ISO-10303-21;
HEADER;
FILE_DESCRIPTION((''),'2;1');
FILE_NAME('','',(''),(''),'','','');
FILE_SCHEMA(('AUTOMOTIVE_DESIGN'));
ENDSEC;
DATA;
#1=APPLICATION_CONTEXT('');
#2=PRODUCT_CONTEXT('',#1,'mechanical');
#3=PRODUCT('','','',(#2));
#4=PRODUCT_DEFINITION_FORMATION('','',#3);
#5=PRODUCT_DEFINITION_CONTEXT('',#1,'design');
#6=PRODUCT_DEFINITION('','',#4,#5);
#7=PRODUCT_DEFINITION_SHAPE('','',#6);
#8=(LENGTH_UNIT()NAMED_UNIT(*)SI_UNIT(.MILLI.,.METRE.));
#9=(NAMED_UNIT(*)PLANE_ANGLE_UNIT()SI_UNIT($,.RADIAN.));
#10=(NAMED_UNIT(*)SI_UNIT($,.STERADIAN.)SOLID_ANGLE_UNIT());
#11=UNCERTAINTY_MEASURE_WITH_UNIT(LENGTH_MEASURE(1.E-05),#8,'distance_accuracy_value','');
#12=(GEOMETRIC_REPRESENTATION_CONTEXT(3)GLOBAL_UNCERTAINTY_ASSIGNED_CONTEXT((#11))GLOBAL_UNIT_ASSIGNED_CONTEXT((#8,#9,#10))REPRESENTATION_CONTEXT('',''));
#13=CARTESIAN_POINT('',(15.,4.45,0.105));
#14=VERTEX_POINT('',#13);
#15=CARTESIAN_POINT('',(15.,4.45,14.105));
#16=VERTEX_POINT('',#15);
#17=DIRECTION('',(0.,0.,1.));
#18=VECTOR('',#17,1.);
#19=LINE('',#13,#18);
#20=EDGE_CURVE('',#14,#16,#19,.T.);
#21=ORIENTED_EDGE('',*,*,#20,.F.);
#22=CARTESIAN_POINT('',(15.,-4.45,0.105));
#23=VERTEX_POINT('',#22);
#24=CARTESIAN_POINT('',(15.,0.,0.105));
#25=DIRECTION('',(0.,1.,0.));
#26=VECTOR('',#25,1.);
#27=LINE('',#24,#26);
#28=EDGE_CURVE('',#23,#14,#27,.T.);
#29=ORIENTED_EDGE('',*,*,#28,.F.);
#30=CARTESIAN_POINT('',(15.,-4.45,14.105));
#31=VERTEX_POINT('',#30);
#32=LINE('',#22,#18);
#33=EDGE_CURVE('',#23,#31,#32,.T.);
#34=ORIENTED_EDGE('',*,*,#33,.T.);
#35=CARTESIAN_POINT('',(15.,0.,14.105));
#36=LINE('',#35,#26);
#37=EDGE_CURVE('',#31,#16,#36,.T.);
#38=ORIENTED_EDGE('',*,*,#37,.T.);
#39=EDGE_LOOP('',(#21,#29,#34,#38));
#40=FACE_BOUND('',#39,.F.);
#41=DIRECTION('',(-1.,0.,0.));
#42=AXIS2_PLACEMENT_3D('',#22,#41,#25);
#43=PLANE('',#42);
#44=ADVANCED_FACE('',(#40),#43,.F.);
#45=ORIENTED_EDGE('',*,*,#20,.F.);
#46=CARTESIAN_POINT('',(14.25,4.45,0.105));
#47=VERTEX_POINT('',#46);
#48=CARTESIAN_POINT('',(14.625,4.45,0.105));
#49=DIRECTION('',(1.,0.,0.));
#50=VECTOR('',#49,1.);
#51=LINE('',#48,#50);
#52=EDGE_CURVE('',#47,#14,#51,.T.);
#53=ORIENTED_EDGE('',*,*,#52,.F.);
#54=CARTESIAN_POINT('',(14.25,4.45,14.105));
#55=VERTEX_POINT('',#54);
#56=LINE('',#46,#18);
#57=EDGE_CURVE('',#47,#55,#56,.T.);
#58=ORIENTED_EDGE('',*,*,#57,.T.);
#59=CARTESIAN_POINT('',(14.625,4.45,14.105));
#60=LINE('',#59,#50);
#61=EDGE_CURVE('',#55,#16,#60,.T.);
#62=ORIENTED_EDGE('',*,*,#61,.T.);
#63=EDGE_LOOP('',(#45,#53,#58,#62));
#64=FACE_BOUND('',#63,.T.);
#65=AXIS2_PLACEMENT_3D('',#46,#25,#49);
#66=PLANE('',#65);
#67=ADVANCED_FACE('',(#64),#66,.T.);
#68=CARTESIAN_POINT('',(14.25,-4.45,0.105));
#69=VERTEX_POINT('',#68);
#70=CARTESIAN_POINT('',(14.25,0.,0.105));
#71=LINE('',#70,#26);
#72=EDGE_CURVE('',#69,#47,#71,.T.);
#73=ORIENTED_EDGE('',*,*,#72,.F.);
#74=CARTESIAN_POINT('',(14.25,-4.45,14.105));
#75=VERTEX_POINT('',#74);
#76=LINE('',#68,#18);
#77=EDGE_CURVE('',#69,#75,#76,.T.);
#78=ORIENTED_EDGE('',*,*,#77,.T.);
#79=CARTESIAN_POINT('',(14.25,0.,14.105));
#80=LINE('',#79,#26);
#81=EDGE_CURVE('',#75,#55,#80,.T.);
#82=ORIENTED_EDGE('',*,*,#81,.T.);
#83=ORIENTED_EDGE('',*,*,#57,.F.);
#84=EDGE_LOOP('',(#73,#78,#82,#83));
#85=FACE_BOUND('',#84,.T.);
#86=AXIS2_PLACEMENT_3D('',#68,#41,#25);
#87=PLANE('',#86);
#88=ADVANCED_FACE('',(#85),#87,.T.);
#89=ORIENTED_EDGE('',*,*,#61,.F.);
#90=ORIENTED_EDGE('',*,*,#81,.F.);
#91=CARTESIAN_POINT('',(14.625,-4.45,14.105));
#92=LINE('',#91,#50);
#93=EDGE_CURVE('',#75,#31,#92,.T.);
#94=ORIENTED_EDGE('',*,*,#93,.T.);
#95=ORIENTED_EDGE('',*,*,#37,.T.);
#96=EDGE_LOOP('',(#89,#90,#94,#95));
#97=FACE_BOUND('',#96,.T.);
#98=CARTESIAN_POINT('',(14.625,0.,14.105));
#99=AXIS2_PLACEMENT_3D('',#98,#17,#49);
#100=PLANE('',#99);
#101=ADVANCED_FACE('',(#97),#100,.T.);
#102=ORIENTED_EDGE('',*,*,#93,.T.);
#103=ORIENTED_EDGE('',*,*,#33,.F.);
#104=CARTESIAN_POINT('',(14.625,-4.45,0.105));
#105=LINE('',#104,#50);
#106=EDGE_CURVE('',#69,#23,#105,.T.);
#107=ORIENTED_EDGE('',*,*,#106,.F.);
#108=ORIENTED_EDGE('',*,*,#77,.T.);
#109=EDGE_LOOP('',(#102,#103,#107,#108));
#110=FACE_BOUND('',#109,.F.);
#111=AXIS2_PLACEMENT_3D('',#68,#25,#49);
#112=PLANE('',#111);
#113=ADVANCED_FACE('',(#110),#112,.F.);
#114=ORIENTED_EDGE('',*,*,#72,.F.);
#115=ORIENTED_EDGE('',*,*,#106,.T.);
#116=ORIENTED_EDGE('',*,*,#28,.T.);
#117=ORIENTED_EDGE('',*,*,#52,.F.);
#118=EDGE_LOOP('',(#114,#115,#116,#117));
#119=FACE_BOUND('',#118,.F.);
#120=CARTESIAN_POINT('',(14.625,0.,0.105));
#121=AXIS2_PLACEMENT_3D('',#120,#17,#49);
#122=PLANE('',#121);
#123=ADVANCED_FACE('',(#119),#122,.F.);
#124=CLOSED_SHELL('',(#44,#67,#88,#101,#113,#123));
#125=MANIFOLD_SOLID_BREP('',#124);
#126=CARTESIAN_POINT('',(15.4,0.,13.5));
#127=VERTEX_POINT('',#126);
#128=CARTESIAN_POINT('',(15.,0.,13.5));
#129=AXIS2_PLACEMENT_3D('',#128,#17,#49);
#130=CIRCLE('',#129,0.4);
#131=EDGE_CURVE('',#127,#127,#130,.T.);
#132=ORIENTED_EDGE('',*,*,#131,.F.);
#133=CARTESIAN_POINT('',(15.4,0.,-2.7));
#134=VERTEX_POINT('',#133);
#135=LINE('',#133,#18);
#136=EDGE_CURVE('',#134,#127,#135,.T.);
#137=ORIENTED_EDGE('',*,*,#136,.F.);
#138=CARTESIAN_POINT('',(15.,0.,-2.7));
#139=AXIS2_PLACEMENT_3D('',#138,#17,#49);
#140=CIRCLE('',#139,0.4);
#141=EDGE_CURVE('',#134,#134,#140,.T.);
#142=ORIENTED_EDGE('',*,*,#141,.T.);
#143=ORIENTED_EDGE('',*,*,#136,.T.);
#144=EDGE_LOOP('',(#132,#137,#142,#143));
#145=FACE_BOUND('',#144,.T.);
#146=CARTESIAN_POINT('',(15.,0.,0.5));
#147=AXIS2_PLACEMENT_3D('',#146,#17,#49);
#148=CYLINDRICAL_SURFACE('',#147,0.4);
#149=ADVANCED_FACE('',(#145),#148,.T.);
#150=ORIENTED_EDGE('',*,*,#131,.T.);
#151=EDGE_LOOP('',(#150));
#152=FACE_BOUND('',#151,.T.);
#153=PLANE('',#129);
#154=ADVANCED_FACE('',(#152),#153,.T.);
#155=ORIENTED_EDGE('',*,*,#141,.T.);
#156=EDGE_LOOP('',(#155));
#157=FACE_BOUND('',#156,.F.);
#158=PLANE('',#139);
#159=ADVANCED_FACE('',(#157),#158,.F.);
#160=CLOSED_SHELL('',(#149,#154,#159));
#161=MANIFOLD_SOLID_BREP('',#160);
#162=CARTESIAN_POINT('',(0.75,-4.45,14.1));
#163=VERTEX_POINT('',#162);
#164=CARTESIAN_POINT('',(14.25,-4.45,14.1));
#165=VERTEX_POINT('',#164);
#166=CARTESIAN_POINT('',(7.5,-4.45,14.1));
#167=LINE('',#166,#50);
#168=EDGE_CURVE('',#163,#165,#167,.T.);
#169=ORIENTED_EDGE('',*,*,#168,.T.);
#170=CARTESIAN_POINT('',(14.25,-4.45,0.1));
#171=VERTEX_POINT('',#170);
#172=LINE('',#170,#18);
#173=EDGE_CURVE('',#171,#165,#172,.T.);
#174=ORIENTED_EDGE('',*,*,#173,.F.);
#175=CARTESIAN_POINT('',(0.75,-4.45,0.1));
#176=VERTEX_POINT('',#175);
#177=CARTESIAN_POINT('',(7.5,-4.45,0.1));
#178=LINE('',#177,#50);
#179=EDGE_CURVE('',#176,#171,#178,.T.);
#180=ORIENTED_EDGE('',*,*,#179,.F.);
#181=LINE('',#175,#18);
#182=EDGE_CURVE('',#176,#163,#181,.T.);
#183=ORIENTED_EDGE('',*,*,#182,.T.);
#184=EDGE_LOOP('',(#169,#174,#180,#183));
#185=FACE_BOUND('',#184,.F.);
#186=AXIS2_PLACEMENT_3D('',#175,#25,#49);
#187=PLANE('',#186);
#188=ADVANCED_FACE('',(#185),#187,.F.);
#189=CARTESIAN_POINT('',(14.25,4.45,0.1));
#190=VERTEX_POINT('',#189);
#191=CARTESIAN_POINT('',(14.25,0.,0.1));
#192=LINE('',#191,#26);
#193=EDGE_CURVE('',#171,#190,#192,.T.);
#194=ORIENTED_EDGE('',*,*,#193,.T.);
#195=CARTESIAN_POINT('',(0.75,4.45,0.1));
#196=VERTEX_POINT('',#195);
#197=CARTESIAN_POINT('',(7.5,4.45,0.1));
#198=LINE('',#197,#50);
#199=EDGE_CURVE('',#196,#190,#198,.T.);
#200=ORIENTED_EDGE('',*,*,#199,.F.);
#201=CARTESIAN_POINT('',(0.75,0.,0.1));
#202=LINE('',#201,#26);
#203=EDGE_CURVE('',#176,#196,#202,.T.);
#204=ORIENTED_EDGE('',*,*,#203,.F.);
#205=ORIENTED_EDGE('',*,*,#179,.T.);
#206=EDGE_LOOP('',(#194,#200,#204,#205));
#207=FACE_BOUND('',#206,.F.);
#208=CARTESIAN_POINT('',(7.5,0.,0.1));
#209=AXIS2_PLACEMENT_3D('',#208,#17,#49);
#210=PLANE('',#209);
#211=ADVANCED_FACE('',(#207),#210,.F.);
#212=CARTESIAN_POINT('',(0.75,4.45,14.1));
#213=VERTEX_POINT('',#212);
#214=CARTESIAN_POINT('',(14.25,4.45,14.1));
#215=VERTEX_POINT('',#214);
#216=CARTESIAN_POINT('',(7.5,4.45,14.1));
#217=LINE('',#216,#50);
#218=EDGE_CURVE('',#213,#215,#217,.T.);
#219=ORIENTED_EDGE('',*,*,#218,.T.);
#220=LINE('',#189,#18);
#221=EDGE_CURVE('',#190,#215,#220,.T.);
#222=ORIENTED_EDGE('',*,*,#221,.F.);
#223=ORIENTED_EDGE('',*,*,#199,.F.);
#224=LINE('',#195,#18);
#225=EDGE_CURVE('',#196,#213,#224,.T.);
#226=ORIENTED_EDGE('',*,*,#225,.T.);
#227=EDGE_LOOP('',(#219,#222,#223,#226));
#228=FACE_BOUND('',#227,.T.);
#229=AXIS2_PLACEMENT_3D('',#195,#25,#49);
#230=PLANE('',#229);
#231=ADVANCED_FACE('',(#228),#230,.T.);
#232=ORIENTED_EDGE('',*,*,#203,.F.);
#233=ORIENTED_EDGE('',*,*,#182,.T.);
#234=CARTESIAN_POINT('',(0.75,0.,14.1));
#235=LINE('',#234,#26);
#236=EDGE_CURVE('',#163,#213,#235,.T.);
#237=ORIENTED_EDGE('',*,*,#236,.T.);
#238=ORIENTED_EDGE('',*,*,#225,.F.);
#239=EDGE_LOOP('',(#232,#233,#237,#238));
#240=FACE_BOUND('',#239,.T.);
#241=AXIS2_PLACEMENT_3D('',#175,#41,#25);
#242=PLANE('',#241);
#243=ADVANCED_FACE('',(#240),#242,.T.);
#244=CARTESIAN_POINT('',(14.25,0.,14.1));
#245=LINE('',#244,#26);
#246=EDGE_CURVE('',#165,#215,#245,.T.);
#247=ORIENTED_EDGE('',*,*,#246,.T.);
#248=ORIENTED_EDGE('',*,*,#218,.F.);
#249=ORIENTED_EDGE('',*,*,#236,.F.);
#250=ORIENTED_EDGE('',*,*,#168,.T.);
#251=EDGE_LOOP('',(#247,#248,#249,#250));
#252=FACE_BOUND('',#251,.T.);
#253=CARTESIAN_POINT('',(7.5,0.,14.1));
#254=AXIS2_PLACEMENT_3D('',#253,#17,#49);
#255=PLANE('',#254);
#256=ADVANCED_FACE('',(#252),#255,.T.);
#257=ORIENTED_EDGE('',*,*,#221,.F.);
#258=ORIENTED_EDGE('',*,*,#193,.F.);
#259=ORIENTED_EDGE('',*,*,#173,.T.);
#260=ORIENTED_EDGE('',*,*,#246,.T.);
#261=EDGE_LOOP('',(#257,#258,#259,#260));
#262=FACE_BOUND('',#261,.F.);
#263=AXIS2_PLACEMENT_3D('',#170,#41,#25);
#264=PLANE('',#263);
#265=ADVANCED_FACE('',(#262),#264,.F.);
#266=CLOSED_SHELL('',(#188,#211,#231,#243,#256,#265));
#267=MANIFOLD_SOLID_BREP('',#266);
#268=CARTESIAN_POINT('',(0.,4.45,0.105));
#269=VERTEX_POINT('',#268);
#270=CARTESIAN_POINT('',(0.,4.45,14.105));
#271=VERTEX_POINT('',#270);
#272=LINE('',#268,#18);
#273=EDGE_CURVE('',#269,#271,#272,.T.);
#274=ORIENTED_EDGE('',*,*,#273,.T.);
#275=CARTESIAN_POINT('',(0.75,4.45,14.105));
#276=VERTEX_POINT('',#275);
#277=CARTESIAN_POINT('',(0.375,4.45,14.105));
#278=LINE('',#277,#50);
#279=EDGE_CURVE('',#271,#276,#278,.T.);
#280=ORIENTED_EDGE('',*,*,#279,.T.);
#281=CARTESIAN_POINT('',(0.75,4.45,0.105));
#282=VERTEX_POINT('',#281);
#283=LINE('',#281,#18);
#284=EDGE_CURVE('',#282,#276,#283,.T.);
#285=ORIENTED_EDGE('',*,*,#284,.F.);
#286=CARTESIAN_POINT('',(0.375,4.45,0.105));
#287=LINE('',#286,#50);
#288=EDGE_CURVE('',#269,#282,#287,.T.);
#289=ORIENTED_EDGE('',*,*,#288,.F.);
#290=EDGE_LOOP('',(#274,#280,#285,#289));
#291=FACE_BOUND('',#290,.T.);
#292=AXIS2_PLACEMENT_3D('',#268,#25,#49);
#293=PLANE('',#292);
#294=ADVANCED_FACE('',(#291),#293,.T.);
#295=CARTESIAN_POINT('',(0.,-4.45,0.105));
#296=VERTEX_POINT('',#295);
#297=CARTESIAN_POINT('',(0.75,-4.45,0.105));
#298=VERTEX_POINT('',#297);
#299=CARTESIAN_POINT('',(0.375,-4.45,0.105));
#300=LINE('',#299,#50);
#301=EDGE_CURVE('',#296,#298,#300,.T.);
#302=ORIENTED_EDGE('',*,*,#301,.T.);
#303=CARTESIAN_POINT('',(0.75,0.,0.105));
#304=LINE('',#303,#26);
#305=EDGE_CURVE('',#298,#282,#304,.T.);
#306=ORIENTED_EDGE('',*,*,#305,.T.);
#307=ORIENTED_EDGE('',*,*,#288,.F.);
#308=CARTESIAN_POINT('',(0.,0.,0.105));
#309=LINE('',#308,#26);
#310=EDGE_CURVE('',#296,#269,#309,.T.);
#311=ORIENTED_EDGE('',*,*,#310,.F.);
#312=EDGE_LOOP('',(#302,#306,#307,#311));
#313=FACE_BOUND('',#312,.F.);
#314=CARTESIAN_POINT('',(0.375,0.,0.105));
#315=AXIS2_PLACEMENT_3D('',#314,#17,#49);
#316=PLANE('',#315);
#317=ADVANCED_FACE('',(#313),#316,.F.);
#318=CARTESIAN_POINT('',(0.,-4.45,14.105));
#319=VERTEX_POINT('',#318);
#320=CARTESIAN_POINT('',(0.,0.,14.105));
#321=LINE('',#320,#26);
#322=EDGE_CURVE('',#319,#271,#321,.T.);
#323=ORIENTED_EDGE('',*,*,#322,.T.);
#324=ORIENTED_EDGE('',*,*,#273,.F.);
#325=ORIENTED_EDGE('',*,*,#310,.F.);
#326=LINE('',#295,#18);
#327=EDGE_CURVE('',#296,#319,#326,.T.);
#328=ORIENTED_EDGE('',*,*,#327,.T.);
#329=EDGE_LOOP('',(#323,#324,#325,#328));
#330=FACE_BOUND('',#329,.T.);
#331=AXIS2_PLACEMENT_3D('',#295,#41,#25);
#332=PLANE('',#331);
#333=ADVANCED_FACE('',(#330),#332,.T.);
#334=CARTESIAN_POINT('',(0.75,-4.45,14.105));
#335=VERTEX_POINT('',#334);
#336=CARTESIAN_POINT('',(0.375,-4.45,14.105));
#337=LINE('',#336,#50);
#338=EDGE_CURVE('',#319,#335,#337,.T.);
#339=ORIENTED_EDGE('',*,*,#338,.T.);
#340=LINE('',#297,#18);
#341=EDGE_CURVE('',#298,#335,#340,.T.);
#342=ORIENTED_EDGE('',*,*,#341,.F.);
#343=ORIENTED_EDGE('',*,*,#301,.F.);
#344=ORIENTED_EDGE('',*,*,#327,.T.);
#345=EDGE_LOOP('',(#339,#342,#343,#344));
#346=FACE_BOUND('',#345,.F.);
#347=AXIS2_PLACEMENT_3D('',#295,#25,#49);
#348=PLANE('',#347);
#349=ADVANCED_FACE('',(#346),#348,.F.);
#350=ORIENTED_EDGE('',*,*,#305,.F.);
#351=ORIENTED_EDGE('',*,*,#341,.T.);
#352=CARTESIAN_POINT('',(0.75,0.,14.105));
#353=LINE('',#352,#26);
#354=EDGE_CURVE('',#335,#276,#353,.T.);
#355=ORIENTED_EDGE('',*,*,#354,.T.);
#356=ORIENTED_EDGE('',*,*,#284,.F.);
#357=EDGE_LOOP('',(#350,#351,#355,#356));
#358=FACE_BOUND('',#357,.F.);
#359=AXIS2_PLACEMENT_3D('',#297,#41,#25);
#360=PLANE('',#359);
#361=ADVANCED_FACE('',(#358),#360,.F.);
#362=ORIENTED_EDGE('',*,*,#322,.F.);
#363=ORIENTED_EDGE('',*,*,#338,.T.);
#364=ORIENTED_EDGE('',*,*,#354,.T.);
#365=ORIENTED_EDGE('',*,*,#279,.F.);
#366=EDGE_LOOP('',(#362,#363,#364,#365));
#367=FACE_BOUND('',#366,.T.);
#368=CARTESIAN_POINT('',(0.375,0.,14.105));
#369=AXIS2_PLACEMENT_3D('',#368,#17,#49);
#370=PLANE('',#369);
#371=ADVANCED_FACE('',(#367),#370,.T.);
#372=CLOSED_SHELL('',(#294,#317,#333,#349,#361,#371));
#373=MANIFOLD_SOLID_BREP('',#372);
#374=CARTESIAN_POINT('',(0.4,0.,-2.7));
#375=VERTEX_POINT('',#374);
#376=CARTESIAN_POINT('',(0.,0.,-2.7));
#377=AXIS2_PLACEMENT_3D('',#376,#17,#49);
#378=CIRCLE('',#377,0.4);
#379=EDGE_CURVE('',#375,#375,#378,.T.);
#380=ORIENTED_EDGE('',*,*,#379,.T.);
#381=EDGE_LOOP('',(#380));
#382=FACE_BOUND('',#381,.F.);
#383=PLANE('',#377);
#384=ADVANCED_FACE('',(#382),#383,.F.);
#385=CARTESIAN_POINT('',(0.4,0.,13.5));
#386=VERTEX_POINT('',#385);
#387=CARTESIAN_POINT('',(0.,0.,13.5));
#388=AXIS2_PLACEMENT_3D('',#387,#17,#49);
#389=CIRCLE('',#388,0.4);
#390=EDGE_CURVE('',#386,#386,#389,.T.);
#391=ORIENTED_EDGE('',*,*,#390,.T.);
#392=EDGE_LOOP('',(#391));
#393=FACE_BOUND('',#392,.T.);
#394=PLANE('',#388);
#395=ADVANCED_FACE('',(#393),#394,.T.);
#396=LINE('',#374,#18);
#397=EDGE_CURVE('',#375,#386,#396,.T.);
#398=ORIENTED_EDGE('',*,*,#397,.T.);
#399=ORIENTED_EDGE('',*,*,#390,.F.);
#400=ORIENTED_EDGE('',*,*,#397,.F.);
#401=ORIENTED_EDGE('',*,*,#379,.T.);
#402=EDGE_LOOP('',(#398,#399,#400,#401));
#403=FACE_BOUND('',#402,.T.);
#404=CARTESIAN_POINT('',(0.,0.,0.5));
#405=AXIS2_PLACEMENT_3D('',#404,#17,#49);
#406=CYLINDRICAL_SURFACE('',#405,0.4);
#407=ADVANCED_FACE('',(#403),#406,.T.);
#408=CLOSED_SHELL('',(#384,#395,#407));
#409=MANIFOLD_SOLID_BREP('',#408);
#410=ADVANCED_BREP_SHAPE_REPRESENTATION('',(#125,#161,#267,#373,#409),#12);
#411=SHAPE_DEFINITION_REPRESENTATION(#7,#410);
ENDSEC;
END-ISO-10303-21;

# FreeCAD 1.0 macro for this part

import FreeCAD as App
import Part
import Sketcher

doc = App.newDocument("Part")
body = doc.addObject("PartDesign::Body", "Body")

# Sketch on XY plane
sketch1 = doc.addObject("Sketcher::SketchObject", "Sketch")
body.addObject(sketch1)
sketch1.AttachmentSupport = (doc.XY_Plane, [""])
sketch1.MapMode = "FlatFace"
sketch1.AttachmentOffset = App.Placement(App.Vector(0, 0, 0.1), App.Rotation())
sketch1.addGeometry([
    Part.LineSegment(App.Vector(1, 4, 0), App.Vector(1, -4, 0)),
    Part.LineSegment(App.Vector(1, -4, 0), App.Vector(14, -4, 0)),
    Part.LineSegment(App.Vector(14, -4, 0), App.Vector(14, 4, 0)),
    Part.LineSegment(App.Vector(14, 4, 0), App.Vector(1, 4, 0)),
], False)
sketch1.addConstraint([
    Sketcher.Constraint("Coincident", 0, 2, 1, 1),
    Sketcher.Constraint("Coincident", 1, 2, 2, 1),
    Sketcher.Constraint("Coincident", 2, 2, 3, 1),
    Sketcher.Constraint("Coincident", 3, 2, 0, 1),
    Sketcher.Constraint("Vertical", 0),
    Sketcher.Constraint("Horizontal", 1),
    Sketcher.Constraint("Vertical", 2),
    Sketcher.Constraint("Horizontal", 3),
    Sketcher.Constraint("DistanceX", 1, 1, 1, 2, 13.5),
    Sketcher.Constraint("DistanceY", 0, 2, 0, 1, 8.9),
    Sketcher.Constraint("DistanceX", -1, 1, 0, 2, 0.75),
    Sketcher.Constraint("DistanceY", 0, 2, -1, 1, 4.45),
])
pad1 = doc.addObject("PartDesign::Pad", "Pad")
body.addObject(pad1)
pad1.Profile = sketch1
pad1.Length = 14
body2 = doc.addObject("PartDesign::Body", "Body001")
body2.AllowCompound = True

# Sketch on XY plane
sketch2 = doc.addObject("Sketcher::SketchObject", "Sketch001")
body2.addObject(sketch2)
sketch2.AttachmentSupport = (doc.getObject("XY_Plane001"), [""])
sketch2.MapMode = "FlatFace"
sketch2.AttachmentOffset = App.Placement(App.Vector(0, 0, 0.5), App.Rotation())
sketch2.addGeometry([
    Part.Circle(App.Vector(0, 0, 0), App.Vector(0, 0, 1), 0.4),
    Part.Circle(App.Vector(15, 0, 0), App.Vector(0, 0, 1), 0.4),
], False)
sketch2.addConstraint([
    Sketcher.Constraint("Coincident", 0, 3, -1, 1),
    Sketcher.Constraint("Equal", 0, 1),
    Sketcher.Constraint("PointOnObject", 1, 3, -1),
    Sketcher.Constraint("Diameter", 0, 0.8),
    Sketcher.Constraint("DistanceX", -1, 1, 1, 3, 15.0),
])
pad2 = doc.addObject("PartDesign::Pad", "Pad001")
body2.addObject(pad2)
pad2.Profile = sketch2
pad2.Type = "TwoLengths"
pad2.Length = 13
pad2.Length2 = 3.2
body3 = doc.addObject("PartDesign::Body", "Body002")
body3.AllowCompound = True

# Sketch on XY plane
sketch3 = doc.addObject("Sketcher::SketchObject", "Sketch002")
body3.addObject(sketch3)
sketch3.AttachmentSupport = (doc.getObject("XY_Plane002"), [""])
sketch3.MapMode = "FlatFace"
sketch3.AttachmentOffset = App.Placement(App.Vector(0, 0, 0.105), App.Rotation())
sketch3.addGeometry([
    Part.LineSegment(App.Vector(0, 4.5, 0), App.Vector(0, -4.5, 0)),  # 0
    Part.LineSegment(App.Vector(0, -4.5, 0), App.Vector(0.8, -4.5, 0)),  # 1
    Part.LineSegment(App.Vector(0.8, -4.5, 0), App.Vector(0.8, 4.5, 0)),  # 2
    Part.LineSegment(App.Vector(0.8, 4.5, 0), App.Vector(0, 4.5, 0)),  # 3
    Part.LineSegment(App.Vector(14.2, 4.5, 0), App.Vector(14.2, -4.5, 0)),  # 4
    Part.LineSegment(App.Vector(14.2, -4.5, 0), App.Vector(15, -4.5, 0)),  # 5
    Part.LineSegment(App.Vector(15, -4.5, 0), App.Vector(15, 4.5, 0)),  # 6
    Part.LineSegment(App.Vector(15, 4.5, 0), App.Vector(14.2, 4.5, 0)),  # 7
], False)
sketch3.addConstraint([
    Sketcher.Constraint("Coincident", 0, 2, 1, 1),
    Sketcher.Constraint("Coincident", 1, 2, 2, 1),
    Sketcher.Constraint("Coincident", 2, 2, 3, 1),
    Sketcher.Constraint("Coincident", 3, 2, 0, 1),
    Sketcher.Constraint("Coincident", 4, 2, 5, 1),
    Sketcher.Constraint("Coincident", 5, 2, 6, 1),
    Sketcher.Constraint("Coincident", 6, 2, 7, 1),
    Sketcher.Constraint("Coincident", 7, 2, 4, 1),
    Sketcher.Constraint("Vertical", 0),
    Sketcher.Constraint("Horizontal", 1),
    Sketcher.Constraint("Vertical", 2),
    Sketcher.Constraint("Horizontal", 3),
    Sketcher.Constraint("Vertical", 4),
    Sketcher.Constraint("Horizontal", 5),
    Sketcher.Constraint("Vertical", 6),
    Sketcher.Constraint("Horizontal", 7),
    Sketcher.Constraint("Symmetric", 0, 2, 3, 2, -1, 1),
    Sketcher.Constraint("Horizontal", 1, 2, 4, 2),
    Sketcher.Constraint("Horizontal", 3, 2, 6, 2),
    Sketcher.Constraint("Equal", 3, 5),
    Sketcher.Constraint("DistanceY", 0, 2, 0, 1, 8.9),
    Sketcher.Constraint("DistanceX", -1, 1, 5, 2, 15.0),
    Sketcher.Constraint("DistanceX", 1, 1, 1, 2, 0.75),
])
pad3 = doc.addObject("PartDesign::Pad", "Pad002")
body3.addObject(pad3)
pad3.Profile = sketch3
pad3.Length = 14

doc.recompute()
